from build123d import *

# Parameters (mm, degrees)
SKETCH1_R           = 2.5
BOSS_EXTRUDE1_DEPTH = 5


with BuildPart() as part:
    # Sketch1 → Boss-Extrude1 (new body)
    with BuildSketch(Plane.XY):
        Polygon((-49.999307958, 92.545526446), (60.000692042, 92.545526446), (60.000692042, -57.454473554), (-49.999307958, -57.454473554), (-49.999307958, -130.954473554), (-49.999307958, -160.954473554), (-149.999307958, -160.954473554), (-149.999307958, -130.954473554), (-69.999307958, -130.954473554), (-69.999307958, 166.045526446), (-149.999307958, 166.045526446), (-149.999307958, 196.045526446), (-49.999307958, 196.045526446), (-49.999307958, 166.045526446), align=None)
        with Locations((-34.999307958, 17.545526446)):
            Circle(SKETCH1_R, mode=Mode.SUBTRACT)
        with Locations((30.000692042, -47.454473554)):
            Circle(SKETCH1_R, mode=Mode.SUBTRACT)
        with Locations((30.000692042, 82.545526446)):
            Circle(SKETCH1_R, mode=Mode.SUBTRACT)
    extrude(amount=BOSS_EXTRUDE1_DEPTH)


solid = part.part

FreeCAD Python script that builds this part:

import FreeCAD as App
import Part
import Sketcher
from FreeCAD import Vector

doc = App.newDocument("Part")
params = doc.addObject("Spreadsheet::Sheet", "Params")
for row, (alias, value) in enumerate([
    ("sketch1_diameter", "5 mm"),
    ("sketch1_width", "110 mm"),
    ("sketch1_width2", "100 mm"),
    ("sketch1_width3", "80 mm"),
    ("sketch1_height", "30 mm"),
    ("pad1_length", "5 mm"),
], start=1):
    params.set(f"A{row}", alias)
    params.set(f"B{row}", "=" + value)
    params.setAlias(f"B{row}", alias)

body = doc.addObject("PartDesign::Body", "Body")

# Sketch on XY plane
sketch1 = doc.addObject("Sketcher::SketchObject", "Sketch")
body.addObject(sketch1)
sketch1.AttachmentSupport = (doc.XY_Plane, [""])
sketch1.MapMode = "FlatFace"
sketch1.addGeometry([
    Part.LineSegment(Vector(60, 92.5, 0), Vector(-50, 92.5, 0)),  # 0
    Part.LineSegment(Vector(-50, 92.5, 0), Vector(-50, 196, 0)),  # 1
    Part.LineSegment(Vector(-50, 196, 0), Vector(-150, 196, 0)),  # 2
    Part.LineSegment(Vector(-150, 196, 0), Vector(-150, 166, 0)),  # 3
    Part.LineSegment(Vector(-150, 166, 0), Vector(-70, 166, 0)),  # 4
    Part.LineSegment(Vector(-70, 166, 0), Vector(-70, -131, 0)),  # 5
    Part.LineSegment(Vector(-70, -131, 0), Vector(-150, -131, 0)),  # 6
    Part.LineSegment(Vector(-150, -131, 0), Vector(-150, -161, 0)),  # 7
    Part.LineSegment(Vector(-150, -161, 0), Vector(-50, -161, 0)),  # 8
    Part.LineSegment(Vector(-50, -161, 0), Vector(-50, -57.5, 0)),  # 9
    Part.LineSegment(Vector(-50, -57.5, 0), Vector(60, -57.5, 0)),  # 10
    Part.LineSegment(Vector(60, -57.5, 0), Vector(60, 92.5, 0)),  # 11
    Part.Circle(Vector(30, -47.5, 0), Vector(0, 0, 1), 2.5),  # 12
    Part.Circle(Vector(30, 82.5, 0), Vector(0, 0, 1), 2.5),  # 13
    Part.Circle(Vector(-35, 17.5, 0), Vector(0, 0, 1), 2.5),  # 14
], False)
sketch1.addConstraint([
    Sketcher.Constraint("Coincident", 0, 2, 1, 1),
    Sketcher.Constraint("Coincident", 1, 2, 2, 1),
    Sketcher.Constraint("Coincident", 2, 2, 3, 1),
    Sketcher.Constraint("Coincident", 3, 2, 4, 1),
    Sketcher.Constraint("Coincident", 4, 2, 5, 1),
    Sketcher.Constraint("Coincident", 5, 2, 6, 1),
    Sketcher.Constraint("Coincident", 6, 2, 7, 1),
    Sketcher.Constraint("Coincident", 7, 2, 8, 1),
    Sketcher.Constraint("Coincident", 8, 2, 9, 1),
    Sketcher.Constraint("Coincident", 9, 2, 10, 1),
    Sketcher.Constraint("Coincident", 10, 2, 11, 1),
    Sketcher.Constraint("Coincident", 11, 2, 0, 1),
    Sketcher.Constraint("Horizontal", 0),
    Sketcher.Constraint("Vertical", 1),
    Sketcher.Constraint("Horizontal", 2),
    Sketcher.Constraint("Vertical", 3),
    Sketcher.Constraint("Horizontal", 4),
    Sketcher.Constraint("Vertical", 5),
    Sketcher.Constraint("Horizontal", 6),
    Sketcher.Constraint("Vertical", 7),
    Sketcher.Constraint("Horizontal", 8),
    Sketcher.Constraint("Vertical", 9),
    Sketcher.Constraint("Horizontal", 10),
    Sketcher.Constraint("Vertical", 11),
    Sketcher.Constraint("Equal", 12, 13),
    Sketcher.Constraint("Equal", 13, 14),
    Sketcher.Constraint("Vertical", 12, 3, 13, 3),
    Sketcher.Constraint("Vertical", 3, 2, 6, 2),
    Sketcher.Constraint("Vertical", 1, 2, 8, 2),
    Sketcher.Constraint("Equal", 3, 7),
    Sketcher.Constraint("Equal", 1, 9),
    Sketcher.Constraint("Diameter", 12, 5.0),
    Sketcher.Constraint("DistanceX", 0, 2, 0, 1, 110.0),
    Sketcher.Constraint("DistanceX", 2, 2, 2, 1, 100.0),
    Sketcher.Constraint("DistanceX", 4, 1, 4, 2, 80.0),
    Sketcher.Constraint("DistanceY", 3, 2, 3, 1, 30.0),
    Sketcher.Constraint("DistanceY", 5, 2, 5, 1, 297.0),
    Sketcher.Constraint("DistanceY", 11, 1, 11, 2, 150.0),
    Sketcher.Constraint("DistanceY", 12, 3, 13, 3, 130.0),
    Sketcher.Constraint("DistanceX", 14, 3, 12, 3, 65.0),
    Sketcher.Constraint("DistanceY", 12, 3, 14, 3, 65.0),
    Sketcher.Constraint("DistanceX", 0, 2, 14, 3, 15.0),
    Sketcher.Constraint("DistanceY", 14, 3, 0, 2, 75.0),
    Sketcher.Constraint("DistanceX", -1, 1, 12, 3, 30.000692),
    Sketcher.Constraint("DistanceY", 12, 3, -1, 1, 47.454474),
])
sketch1.setExpression("Constraints[31]", "Params.sketch1_diameter")
sketch1.setExpression("Constraints[32]", "Params.sketch1_width")
sketch1.setExpression("Constraints[33]", "Params.sketch1_width2")
sketch1.setExpression("Constraints[34]", "Params.sketch1_width3")
sketch1.setExpression("Constraints[35]", "Params.sketch1_height")
pad1 = doc.addObject("PartDesign::Pad", "Pad")
body.addObject(pad1)
pad1.Profile = sketch1
pad1.setExpression("Length", "Params.pad1_length")

doc.recompute()
